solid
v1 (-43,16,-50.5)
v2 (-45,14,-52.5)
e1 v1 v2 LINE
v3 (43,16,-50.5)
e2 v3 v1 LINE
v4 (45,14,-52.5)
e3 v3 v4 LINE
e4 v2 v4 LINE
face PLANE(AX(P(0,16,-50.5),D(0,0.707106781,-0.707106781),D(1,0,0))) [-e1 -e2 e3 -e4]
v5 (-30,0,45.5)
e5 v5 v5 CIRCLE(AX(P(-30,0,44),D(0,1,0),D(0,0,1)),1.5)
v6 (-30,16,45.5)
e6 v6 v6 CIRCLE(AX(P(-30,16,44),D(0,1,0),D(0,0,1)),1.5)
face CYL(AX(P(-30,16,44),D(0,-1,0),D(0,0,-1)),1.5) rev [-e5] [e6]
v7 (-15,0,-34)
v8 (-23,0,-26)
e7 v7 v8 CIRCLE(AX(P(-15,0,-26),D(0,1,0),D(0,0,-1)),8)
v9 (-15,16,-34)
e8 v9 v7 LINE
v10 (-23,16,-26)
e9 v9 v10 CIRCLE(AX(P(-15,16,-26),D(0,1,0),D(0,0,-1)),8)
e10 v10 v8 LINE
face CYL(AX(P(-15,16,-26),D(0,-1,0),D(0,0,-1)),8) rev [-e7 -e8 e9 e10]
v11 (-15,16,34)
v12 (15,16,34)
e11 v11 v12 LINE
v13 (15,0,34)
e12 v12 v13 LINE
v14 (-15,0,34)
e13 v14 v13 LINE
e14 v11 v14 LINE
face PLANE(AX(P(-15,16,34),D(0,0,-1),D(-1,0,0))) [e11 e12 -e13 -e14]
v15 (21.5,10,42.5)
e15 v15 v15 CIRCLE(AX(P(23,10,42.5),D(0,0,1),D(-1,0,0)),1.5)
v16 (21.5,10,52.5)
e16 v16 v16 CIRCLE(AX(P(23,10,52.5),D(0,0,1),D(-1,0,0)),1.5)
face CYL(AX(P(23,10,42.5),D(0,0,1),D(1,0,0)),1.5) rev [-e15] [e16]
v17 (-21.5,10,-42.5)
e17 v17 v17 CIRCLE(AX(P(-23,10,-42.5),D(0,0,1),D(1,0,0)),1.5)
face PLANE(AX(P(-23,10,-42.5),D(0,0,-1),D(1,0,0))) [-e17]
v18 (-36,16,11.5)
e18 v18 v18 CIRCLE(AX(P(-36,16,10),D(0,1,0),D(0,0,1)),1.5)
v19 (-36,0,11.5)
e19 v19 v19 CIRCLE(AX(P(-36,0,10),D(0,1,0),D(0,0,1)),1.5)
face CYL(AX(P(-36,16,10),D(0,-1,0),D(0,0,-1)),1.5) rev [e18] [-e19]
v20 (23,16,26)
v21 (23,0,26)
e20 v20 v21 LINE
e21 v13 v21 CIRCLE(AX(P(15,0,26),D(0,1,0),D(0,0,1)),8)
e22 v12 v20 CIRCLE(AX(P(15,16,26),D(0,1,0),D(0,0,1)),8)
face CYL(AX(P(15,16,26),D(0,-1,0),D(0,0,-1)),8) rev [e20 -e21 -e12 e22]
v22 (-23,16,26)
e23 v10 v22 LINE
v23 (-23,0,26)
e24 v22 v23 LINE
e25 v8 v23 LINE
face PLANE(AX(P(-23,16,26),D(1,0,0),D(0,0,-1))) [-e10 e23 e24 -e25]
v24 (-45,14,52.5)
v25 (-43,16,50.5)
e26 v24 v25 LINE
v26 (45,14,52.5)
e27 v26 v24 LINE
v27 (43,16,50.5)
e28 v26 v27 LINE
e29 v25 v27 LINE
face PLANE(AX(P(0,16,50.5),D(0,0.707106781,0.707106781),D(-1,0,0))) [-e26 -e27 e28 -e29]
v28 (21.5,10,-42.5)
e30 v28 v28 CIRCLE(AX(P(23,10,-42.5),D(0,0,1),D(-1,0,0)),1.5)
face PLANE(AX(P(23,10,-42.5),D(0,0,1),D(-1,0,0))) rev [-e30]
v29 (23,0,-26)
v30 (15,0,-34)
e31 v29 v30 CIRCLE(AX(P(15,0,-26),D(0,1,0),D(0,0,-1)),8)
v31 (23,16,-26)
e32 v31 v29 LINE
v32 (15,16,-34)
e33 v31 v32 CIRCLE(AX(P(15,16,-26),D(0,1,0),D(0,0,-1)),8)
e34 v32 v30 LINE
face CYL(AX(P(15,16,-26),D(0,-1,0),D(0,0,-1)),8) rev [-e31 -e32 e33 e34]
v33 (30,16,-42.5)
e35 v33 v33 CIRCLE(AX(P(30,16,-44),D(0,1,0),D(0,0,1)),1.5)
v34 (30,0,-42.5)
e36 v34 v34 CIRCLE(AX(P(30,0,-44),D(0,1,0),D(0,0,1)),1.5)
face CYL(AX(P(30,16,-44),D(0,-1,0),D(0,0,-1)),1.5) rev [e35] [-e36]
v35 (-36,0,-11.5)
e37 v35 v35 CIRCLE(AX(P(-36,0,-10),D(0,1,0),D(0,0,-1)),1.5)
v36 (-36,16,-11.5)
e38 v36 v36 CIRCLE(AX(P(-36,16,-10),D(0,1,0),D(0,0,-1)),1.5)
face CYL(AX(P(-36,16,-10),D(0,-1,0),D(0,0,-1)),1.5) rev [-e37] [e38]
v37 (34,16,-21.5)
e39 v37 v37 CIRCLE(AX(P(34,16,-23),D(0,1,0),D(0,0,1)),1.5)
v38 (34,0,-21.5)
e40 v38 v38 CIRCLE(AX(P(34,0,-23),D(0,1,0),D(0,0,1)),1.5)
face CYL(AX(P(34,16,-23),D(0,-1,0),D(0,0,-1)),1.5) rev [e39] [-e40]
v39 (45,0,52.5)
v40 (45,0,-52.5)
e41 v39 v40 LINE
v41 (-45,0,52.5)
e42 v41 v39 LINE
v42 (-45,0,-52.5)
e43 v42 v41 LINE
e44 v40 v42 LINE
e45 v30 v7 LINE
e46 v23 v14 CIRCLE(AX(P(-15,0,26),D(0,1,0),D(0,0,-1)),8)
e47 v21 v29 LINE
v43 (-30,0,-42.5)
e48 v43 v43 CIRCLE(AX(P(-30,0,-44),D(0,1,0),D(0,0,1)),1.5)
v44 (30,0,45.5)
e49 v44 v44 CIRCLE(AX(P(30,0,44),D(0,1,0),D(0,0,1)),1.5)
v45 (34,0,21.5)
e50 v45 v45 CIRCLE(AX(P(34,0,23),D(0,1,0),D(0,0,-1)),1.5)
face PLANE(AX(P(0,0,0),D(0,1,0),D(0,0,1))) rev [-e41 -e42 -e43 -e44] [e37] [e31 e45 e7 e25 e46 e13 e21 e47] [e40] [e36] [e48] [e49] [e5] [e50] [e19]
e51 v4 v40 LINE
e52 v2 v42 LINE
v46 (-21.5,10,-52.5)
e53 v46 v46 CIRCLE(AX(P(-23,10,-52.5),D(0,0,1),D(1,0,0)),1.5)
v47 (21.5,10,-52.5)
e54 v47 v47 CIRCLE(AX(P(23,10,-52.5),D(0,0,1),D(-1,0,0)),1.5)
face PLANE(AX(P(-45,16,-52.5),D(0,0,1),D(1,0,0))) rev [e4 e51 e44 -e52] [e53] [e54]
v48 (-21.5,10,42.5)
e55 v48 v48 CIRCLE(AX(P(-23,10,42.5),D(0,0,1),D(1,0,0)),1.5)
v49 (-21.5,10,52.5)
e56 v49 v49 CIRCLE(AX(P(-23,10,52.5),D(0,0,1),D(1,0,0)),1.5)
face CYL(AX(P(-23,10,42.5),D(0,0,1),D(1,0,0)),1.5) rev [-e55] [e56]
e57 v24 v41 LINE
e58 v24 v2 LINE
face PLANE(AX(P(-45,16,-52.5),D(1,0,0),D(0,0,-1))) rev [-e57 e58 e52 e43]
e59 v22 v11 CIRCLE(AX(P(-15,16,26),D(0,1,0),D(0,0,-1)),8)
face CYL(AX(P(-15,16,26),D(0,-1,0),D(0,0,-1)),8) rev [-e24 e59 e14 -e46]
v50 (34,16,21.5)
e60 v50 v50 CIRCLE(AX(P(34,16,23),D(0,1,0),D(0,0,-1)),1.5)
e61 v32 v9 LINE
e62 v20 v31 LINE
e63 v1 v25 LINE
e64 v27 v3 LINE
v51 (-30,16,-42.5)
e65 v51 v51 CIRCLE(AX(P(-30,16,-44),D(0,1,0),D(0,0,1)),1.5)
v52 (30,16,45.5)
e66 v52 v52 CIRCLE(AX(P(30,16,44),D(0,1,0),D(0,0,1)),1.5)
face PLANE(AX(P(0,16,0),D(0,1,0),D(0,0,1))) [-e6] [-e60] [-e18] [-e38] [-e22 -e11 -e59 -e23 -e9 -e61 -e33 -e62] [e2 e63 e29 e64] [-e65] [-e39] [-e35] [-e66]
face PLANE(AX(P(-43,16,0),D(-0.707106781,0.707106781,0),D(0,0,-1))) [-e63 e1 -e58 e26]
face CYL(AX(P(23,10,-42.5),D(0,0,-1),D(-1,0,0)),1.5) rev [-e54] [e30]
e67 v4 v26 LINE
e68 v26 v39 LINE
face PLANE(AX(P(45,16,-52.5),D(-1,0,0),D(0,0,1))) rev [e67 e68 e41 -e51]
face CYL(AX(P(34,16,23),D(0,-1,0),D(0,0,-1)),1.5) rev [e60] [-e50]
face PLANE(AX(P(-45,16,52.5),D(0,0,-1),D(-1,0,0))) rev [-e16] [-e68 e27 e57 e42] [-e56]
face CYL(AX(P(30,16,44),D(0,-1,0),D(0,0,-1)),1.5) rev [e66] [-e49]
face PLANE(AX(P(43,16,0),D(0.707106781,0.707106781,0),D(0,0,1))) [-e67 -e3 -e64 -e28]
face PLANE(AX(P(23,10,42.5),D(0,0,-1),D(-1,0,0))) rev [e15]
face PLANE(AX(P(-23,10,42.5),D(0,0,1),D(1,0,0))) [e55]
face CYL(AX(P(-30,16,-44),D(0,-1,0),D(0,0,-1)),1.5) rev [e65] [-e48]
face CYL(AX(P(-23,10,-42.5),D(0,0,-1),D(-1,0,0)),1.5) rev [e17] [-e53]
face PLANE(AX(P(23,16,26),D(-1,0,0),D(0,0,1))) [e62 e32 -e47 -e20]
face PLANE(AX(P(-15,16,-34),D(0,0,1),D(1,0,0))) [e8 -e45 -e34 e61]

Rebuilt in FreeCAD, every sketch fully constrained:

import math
import FreeCAD as App
import Part
import Sketcher
from FreeCAD import Vector


def edges_at(feature, points):
    """Names of the edges that pass closest to the given points."""
    edges = feature.Shape.Edges
    near = lambda p: min(range(len(edges)), key=lambda i: edges[i].distToShape(Part.Vertex(*p))[0])
    return sorted({f"Edge{near(p) + 1}" for p in points})

doc = App.newDocument("Part")
params = doc.addObject("Spreadsheet::Sheet", "Params")
for row, (alias, value) in enumerate([
    ("sketch1_diameter", "3 mm"),
    ("sketch1_radius", "8 mm"),
    ("sketch1_width", "90 mm"),
    ("sketch1_width2", "30 mm"),
    ("sketch1_height", "105 mm"),
    ("pad1_length", "16 mm"),
    ("chamfer_size", "2 mm"),
    ("sketch2_diameter", "3 mm"),
    ("pocket1_length", "10 mm"),
], start=1):
    params.set(f"A{row}", alias)
    params.set(f"B{row}", "=" + value)
    params.setAlias(f"B{row}", alias)

body = doc.addObject("PartDesign::Body", "Body")

# Sketch on XZ plane
sketch1 = body.newObject("Sketcher::SketchObject", "Sketch")
sketch1.AttachmentSupport = (doc.getObject("XZ_Plane"), [""])
sketch1.MapMode = "FlatFace"
sketch1.addGeometry([
    Part.LineSegment(Vector(-45, -52.5, 0), Vector(-45, 52.5, 0)),  # 0
    Part.LineSegment(Vector(-45, 52.5, 0), Vector(45, 52.5, 0)),  # 1
    Part.LineSegment(Vector(45, 52.5, 0), Vector(45, -52.5, 0)),  # 2
    Part.LineSegment(Vector(45, -52.5, 0), Vector(-45, -52.5, 0)),  # 3
    Part.Circle(Vector(-30, 44, 0), Vector(0, 0, 1), 1.5),  # 4
    Part.Circle(Vector(-36, 10, 0), Vector(0, 0, 1), 1.5),  # 5
    Part.Circle(Vector(30, 44, 0), Vector(0, 0, 1), 1.5),  # 6
    Part.Circle(Vector(34, 23, 0), Vector(0, 0, 1), 1.5),  # 7
    Part.Circle(Vector(-36, -10, 0), Vector(0, 0, 1), 1.5),  # 8
    Part.Circle(Vector(-30, -44, 0), Vector(0, 0, 1), 1.5),  # 9
    Part.LineSegment(Vector(15, 34, 0), Vector(-15, 34, 0)),  # 10
    Part.ArcOfCircle(Part.Circle(Vector(-15, 26, 0), Vector(0, 0, 1), 8), math.radians(90), math.radians(180)),  # 11
    Part.LineSegment(Vector(-23, 26, 0), Vector(-23, -26, 0)),  # 12
    Part.ArcOfCircle(Part.Circle(Vector(-15, -26, 0), Vector(0, 0, 1), 8), math.radians(-180), math.radians(-90)),  # 13
    Part.LineSegment(Vector(-15, -34, 0), Vector(15, -34, 0)),  # 14
    Part.ArcOfCircle(Part.Circle(Vector(15, -26, 0), Vector(0, 0, 1), 8), math.radians(-90), math.radians(0)),  # 15
    Part.LineSegment(Vector(23, -26, 0), Vector(23, 26, 0)),  # 16
    Part.ArcOfCircle(Part.Circle(Vector(15, 26, 0), Vector(0, 0, 1), 8), math.radians(0), math.radians(90)),  # 17
    Part.Circle(Vector(34, -23, 0), Vector(0, 0, 1), 1.5),  # 18
    Part.Circle(Vector(30, -44, 0), Vector(0, 0, 1), 1.5),  # 19
], False)
sketch1.addConstraint([
    Sketcher.Constraint("Coincident", 0, 2, 1, 1),
    Sketcher.Constraint("Coincident", 1, 2, 2, 1),
    Sketcher.Constraint("Coincident", 2, 2, 3, 1),
    Sketcher.Constraint("Coincident", 3, 2, 0, 1),
    Sketcher.Constraint("Tangent", 10, 2, 11, 1),
    Sketcher.Constraint("Tangent", 11, 2, 12, 1),
    Sketcher.Constraint("Tangent", 12, 2, 13, 1),
    Sketcher.Constraint("Tangent", 13, 2, 14, 1),
    Sketcher.Constraint("Tangent", 14, 2, 15, 1),
    Sketcher.Constraint("Tangent", 15, 2, 16, 1),
    Sketcher.Constraint("Tangent", 16, 2, 17, 1),
    Sketcher.Constraint("Tangent", 17, 2, 10, 1),
    Sketcher.Constraint("Vertical", 0),
    Sketcher.Constraint("Horizontal", 1),
    Sketcher.Constraint("Vertical", 2),
    Sketcher.Constraint("Horizontal", 3),
    Sketcher.Constraint("Horizontal", 10),
    Sketcher.Constraint("Vertical", 12),
    Sketcher.Constraint("Horizontal", 14),
    Sketcher.Constraint("Vertical", 16),
    Sketcher.Constraint("Equal", 4, 5),
    Sketcher.Constraint("Equal", 5, 6),
    Sketcher.Constraint("Equal", 6, 7),
    Sketcher.Constraint("Equal", 7, 8),
    Sketcher.Constraint("Equal", 8, 9),
    Sketcher.Constraint("Equal", 11, 13),
    Sketcher.Constraint("Equal", 13, 15),
    Sketcher.Constraint("Equal", 15, 17),
    Sketcher.Constraint("Equal", 9, 18),
    Sketcher.Constraint("Equal", 18, 19),
    Sketcher.Constraint("Symmetric", 6, 3, 9, 3, -1, 1),
    Sketcher.Constraint("Symmetric", 11, 3, 15, 3, -1, 1),
    Sketcher.Constraint("Symmetric", 4, 3, 19, 3, -1, 1),
    Sketcher.Constraint("Symmetric", 0, 2, 2, 2, -1, 1),
    Sketcher.Constraint("Symmetric", 4, 3, 6, 3, -2),
    Sketcher.Constraint("Symmetric", 5, 3, 8, 3, -1),
    Sketcher.Constraint("Symmetric", 7, 3, 18, 3, -1),
    Sketcher.Constraint("Diameter", 4, 3.0),
    Sketcher.Constraint("Radius", 11, 8.0),
    Sketcher.Constraint("DistanceX", 1, 1, 1, 2, 90.0),
    Sketcher.Constraint("DistanceX", 10, 2, 10, 1, 30.0),
    Sketcher.Constraint("DistanceY", 0, 1, 0, 2, 105.0),
    Sketcher.Constraint("DistanceY", 12, 2, 12, 1, 52.0),
    Sketcher.Constraint("DistanceX", 4, 3, -1, 1, 30.0),
    Sketcher.Constraint("DistanceY", -1, 1, 4, 3, 44.0),
    Sketcher.Constraint("DistanceX", 5, 3, -1, 1, 36.0),
    Sketcher.Constraint("DistanceY", -1, 1, 5, 3, 10.0),
    Sketcher.Constraint("DistanceX", -1, 1, 7, 3, 34.0),
    Sketcher.Constraint("DistanceY", -1, 1, 7, 3, 23.0),
])
sketch1.setExpression("Constraints[37]", "Params.sketch1_diameter")
sketch1.setExpression("Constraints[38]", "Params.sketch1_radius")
sketch1.setExpression("Constraints[39]", "Params.sketch1_width")
sketch1.setExpression("Constraints[40]", "Params.sketch1_width2")
sketch1.setExpression("Constraints[41]", "Params.sketch1_height")
pad1 = body.newObject("PartDesign::Pad", "Pad")
pad1.Profile = sketch1
pad1.setExpression("Length", "Params.pad1_length")
pad1.Reversed = True
doc.recompute()

chamfer = body.newObject("PartDesign::Chamfer", "Chamfer")
chamfer.Base = (pad1, edges_at(pad1, [
    (-45, 16, 0),
    (0, 16, 52.5),
    (45, 16, 0),
    (0, 16, -52.5),
]))
chamfer.setExpression("Size", "Params.chamfer_size")

# Sketch on XY plane
sketch2 = body.newObject("Sketcher::SketchObject", "Sketch001")
sketch2.AttachmentSupport = (doc.getObject("XY_Plane"), [""])
sketch2.MapMode = "FlatFace"
sketch2.AttachmentOffset = App.Placement(Vector(0, 0, 52.5), App.Rotation())
sketch2.addGeometry([
    Part.Circle(Vector(-23, 10, 0), Vector(0, 0, 1), 1.5),
    Part.Circle(Vector(23, 10, 0), Vector(0, 0, 1), 1.5),
], False)
sketch2.addConstraint([
    Sketcher.Constraint("Equal", 0, 1),
    Sketcher.Constraint("Symmetric", 0, 3, 1, 3, -2),
    Sketcher.Constraint("Diameter", 0, 3.0),
    Sketcher.Constraint("DistanceX", 0, 3, -1, 1, 23.0),
    Sketcher.Constraint("DistanceY", -1, 1, 0, 3, 10.0),
])
sketch2.setExpression("Constraints[2]", "Params.sketch2_diameter")
pocket1 = body.newObject("PartDesign::Pocket", "Pocket")
pocket1.Profile = sketch2
pocket1.setExpression("Length", "Params.pocket1_length")
doc.recompute()

mirrored = body.newObject("PartDesign::Mirrored", "Mirrored")
mirrored.Originals = [pocket1]
mirrored.MirrorPlane = (doc.getObject("XY_Plane"), [""])
body.Tip = mirrored

doc.recompute()
